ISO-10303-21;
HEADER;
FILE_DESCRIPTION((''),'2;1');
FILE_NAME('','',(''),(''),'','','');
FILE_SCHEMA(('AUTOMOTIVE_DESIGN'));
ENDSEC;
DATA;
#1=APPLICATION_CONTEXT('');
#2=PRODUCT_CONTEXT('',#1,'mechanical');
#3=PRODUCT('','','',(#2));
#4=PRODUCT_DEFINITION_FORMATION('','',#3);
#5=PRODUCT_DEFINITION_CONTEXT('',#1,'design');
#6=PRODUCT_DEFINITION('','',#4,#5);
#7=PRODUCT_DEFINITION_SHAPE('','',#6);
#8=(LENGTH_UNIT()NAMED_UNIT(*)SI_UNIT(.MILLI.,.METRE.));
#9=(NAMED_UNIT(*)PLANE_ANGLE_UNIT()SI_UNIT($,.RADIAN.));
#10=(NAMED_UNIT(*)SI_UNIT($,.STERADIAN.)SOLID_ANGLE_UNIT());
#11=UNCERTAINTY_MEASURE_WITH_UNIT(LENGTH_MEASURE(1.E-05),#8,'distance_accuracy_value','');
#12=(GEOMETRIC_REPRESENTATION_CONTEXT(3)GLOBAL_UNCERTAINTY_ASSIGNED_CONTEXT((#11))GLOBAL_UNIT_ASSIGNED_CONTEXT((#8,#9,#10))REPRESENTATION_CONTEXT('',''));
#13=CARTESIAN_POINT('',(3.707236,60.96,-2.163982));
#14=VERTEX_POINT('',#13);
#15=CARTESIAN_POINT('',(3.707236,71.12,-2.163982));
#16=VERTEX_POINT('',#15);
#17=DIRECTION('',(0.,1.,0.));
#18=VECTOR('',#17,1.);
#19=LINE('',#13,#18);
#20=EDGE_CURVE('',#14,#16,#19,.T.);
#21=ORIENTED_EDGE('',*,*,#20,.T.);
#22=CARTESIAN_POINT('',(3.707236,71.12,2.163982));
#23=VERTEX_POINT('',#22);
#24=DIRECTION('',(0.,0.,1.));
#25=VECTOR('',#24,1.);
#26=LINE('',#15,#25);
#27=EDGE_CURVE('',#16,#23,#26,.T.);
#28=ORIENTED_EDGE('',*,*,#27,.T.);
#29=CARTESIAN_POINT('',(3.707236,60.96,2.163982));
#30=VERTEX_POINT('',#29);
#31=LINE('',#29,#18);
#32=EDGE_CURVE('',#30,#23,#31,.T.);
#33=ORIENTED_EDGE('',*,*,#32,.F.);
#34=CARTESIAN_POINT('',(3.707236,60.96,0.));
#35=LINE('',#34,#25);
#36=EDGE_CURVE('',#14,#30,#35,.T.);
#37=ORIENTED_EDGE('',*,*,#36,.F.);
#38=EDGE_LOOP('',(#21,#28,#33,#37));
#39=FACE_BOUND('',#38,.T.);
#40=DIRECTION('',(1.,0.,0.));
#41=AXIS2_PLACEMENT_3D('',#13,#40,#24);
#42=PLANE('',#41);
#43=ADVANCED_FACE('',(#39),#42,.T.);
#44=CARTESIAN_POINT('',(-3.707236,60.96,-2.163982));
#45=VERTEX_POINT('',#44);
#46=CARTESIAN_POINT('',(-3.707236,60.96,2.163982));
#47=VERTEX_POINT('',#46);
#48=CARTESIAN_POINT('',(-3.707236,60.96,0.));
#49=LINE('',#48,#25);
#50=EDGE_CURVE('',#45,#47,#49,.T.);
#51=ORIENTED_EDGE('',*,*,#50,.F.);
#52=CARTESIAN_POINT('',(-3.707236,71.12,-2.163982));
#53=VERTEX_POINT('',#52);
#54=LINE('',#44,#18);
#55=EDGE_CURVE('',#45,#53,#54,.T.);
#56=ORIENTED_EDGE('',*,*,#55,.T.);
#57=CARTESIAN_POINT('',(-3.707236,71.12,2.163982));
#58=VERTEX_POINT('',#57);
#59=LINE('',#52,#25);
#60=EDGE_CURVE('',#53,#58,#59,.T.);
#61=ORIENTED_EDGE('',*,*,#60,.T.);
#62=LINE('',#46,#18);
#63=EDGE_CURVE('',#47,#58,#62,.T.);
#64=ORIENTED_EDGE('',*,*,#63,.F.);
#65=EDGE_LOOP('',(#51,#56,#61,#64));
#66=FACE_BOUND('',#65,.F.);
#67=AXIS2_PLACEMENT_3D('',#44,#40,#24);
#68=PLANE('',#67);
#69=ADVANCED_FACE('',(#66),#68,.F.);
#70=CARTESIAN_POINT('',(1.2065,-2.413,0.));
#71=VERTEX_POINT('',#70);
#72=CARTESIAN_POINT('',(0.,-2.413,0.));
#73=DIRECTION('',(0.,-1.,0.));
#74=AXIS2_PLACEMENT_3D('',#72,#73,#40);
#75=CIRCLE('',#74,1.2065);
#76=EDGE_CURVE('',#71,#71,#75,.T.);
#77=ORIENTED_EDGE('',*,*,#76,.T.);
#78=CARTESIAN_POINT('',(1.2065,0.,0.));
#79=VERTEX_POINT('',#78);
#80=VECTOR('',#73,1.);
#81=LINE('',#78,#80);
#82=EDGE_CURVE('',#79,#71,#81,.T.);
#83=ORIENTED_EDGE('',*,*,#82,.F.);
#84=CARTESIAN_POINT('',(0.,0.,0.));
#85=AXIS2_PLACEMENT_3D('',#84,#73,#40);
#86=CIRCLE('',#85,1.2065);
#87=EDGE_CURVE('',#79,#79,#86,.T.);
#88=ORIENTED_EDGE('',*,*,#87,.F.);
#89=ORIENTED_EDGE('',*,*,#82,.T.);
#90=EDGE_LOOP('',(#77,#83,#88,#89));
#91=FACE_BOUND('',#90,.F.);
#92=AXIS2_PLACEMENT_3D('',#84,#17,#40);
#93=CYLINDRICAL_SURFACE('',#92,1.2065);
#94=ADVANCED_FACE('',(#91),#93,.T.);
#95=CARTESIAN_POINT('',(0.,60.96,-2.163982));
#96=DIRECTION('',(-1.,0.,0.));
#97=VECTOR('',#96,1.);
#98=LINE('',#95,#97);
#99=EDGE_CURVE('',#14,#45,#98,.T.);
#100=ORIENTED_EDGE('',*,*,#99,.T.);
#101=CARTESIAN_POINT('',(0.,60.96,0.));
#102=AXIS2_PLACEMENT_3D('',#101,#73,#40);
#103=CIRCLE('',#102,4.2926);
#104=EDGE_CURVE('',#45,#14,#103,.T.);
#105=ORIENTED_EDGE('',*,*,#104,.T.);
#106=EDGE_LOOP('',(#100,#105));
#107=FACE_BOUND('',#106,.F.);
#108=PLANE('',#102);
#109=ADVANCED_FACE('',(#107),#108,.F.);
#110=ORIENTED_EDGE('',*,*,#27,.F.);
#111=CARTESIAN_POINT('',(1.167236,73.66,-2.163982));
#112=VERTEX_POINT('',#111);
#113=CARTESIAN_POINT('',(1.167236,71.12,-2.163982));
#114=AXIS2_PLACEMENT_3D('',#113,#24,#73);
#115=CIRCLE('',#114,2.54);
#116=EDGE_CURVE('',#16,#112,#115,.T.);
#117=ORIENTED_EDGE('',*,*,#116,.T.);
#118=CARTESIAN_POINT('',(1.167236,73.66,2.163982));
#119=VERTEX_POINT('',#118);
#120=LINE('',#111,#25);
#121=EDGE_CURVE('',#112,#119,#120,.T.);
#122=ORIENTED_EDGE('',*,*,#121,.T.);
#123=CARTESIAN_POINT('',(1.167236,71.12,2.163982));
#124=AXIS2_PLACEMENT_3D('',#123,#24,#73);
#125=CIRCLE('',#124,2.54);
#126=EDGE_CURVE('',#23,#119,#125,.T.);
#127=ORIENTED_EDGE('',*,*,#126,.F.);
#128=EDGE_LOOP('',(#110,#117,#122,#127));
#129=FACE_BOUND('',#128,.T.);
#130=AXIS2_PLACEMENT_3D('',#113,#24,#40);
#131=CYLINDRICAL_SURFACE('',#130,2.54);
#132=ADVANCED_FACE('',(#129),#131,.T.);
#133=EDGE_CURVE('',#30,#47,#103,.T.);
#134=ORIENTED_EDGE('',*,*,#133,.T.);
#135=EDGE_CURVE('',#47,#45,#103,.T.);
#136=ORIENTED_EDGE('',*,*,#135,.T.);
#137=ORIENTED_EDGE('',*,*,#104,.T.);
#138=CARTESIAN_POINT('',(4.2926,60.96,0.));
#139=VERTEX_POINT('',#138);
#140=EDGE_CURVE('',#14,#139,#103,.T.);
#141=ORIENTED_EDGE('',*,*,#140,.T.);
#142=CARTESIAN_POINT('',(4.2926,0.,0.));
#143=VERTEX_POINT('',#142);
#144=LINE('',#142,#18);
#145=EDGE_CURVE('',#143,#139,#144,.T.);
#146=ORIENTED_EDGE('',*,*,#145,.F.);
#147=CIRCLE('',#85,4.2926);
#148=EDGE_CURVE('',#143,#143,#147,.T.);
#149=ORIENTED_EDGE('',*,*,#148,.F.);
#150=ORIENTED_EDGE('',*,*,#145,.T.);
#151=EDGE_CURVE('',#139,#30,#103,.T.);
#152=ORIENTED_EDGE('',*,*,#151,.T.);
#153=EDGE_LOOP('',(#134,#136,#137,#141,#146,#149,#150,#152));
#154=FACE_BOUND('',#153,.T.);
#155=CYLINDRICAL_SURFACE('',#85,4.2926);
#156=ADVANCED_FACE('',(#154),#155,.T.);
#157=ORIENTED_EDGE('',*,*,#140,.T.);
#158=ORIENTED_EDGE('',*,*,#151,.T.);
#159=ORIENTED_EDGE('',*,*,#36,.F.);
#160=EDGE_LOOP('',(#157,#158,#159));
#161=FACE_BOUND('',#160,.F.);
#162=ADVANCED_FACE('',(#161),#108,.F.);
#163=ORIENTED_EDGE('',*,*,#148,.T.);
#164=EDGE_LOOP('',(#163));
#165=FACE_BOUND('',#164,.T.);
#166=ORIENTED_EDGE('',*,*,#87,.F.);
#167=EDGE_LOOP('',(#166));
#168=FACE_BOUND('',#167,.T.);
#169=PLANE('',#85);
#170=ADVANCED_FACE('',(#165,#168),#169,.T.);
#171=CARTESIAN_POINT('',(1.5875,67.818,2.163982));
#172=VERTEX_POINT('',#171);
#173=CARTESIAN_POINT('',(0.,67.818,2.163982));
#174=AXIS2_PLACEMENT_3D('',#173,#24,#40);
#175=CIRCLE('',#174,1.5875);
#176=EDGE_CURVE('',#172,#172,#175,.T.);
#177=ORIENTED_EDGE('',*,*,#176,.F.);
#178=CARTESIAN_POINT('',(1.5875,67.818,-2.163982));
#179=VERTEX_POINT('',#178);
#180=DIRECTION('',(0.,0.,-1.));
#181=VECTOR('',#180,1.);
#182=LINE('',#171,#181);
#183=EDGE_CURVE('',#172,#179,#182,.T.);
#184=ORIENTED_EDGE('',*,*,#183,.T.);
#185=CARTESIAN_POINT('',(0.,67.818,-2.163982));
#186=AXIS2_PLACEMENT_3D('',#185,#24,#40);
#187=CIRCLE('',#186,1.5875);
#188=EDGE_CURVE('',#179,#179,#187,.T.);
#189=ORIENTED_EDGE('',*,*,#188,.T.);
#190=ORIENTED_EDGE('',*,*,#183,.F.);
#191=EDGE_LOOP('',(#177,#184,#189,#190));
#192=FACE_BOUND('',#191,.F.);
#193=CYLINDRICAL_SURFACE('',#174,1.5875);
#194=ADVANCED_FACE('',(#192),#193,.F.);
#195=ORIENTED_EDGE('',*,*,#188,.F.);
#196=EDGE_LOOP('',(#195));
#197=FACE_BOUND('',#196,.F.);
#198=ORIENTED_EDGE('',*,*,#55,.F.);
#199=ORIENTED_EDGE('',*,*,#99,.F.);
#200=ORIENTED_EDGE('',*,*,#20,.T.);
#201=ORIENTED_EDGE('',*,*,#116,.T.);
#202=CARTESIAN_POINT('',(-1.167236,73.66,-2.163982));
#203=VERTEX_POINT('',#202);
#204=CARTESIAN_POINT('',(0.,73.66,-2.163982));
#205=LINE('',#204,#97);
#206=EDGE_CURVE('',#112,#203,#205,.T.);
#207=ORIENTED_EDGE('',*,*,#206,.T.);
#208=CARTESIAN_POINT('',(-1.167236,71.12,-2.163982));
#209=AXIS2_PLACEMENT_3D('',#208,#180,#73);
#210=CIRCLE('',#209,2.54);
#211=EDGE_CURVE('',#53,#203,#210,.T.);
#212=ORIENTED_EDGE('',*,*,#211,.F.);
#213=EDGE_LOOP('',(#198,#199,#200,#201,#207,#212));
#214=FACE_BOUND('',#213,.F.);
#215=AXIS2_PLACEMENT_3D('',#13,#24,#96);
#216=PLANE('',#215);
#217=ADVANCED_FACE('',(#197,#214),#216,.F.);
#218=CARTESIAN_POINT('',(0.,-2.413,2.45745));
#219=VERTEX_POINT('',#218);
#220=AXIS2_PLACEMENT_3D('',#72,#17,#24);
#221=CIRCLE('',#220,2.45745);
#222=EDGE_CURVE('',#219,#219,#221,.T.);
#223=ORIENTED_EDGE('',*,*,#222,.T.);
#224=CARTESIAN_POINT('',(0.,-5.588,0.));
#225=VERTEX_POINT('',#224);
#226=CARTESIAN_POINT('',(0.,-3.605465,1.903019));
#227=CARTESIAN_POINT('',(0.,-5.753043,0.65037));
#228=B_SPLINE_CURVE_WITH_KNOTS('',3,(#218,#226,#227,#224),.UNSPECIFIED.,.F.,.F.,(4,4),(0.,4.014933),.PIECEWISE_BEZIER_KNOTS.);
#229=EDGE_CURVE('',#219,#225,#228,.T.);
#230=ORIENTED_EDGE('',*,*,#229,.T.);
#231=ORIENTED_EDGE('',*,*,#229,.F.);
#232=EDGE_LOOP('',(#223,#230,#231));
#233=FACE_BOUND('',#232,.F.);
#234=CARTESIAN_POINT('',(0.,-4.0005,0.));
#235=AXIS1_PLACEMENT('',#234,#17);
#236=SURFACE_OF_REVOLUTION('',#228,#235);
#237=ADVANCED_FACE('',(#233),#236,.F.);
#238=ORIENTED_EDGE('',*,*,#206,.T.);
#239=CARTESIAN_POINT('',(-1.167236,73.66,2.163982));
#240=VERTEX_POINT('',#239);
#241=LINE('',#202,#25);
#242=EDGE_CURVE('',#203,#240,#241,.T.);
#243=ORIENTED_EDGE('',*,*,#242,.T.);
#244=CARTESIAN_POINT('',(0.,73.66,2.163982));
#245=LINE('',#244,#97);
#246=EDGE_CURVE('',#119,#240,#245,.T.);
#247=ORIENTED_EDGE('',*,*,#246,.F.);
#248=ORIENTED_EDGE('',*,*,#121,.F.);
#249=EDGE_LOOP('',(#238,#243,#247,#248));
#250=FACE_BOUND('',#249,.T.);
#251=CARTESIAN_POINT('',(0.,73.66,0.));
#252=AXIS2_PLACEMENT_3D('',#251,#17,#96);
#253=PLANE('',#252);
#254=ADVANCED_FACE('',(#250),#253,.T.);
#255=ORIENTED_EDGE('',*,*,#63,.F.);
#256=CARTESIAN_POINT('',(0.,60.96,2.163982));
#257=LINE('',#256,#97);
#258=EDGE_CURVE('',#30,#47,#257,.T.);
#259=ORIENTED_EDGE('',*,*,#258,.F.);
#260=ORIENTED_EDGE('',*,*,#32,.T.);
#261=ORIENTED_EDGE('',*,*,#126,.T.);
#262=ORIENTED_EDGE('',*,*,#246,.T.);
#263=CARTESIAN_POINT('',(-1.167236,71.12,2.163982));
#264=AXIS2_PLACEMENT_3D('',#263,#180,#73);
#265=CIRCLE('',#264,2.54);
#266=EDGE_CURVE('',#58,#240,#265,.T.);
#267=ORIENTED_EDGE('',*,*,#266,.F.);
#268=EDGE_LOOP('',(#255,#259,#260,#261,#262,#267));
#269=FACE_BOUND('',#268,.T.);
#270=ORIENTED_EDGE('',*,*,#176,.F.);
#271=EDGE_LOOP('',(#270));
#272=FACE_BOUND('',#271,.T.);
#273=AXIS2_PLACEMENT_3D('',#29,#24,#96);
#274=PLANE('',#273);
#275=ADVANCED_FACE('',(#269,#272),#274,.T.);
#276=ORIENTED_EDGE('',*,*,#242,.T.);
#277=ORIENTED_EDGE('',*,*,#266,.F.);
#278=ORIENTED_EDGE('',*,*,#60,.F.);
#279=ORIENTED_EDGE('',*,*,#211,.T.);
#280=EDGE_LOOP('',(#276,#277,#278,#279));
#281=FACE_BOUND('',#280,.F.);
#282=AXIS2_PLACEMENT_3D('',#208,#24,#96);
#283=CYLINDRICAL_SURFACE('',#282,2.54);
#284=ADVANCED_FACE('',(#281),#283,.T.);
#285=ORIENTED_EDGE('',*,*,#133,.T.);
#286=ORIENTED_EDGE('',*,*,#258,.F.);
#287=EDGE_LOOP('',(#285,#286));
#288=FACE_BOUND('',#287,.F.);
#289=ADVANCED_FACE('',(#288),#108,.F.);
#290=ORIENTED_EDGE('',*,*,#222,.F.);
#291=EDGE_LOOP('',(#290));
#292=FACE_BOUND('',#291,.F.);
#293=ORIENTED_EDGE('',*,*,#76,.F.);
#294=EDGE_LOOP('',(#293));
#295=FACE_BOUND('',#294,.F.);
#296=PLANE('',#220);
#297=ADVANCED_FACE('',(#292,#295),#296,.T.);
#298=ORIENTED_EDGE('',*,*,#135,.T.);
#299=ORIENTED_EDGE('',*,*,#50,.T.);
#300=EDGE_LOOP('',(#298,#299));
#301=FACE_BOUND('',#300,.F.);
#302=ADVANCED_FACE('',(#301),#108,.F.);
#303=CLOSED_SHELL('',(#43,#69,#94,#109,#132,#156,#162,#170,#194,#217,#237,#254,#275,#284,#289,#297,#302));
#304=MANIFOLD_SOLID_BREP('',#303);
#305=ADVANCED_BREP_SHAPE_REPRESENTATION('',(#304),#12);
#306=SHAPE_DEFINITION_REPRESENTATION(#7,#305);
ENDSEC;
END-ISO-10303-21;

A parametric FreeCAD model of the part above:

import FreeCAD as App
import Part
import Sketcher
Q = App.Units.Quantity


def edges_at(feature, points):
    """Names of the edges that pass closest to the given points."""
    edges = feature.Shape.Edges
    near = lambda p: min(range(len(edges)), key=lambda i: edges[i].distToShape(Part.Vertex(*p))[0])
    return sorted({f"Edge{near(p) + 1}" for p in points})


def add_polygon(sketch, points):
    """Adds a closed chain of lines whose ends are joined by coincident constraints."""
    first, n = sketch.GeometryCount, len(points)
    for a, b in zip(points, points[1:] + points[:1]):
        sketch.addGeometry(Part.LineSegment(App.Vector(*a, 0), App.Vector(*b, 0)), False)
    for i in range(n):
        sketch.addConstraint(Sketcher.Constraint("Coincident", first + i, 2, first + (i + 1) % n, 1))

doc = App.newDocument("Part")
body = doc.addObject("PartDesign::Body", "Body")

# Sketch on XZ plane
sketch1 = doc.addObject("Sketcher::SketchObject", "Sketch")
body.addObject(sketch1)
sketch1.AttachmentSupport = (doc.XZ_Plane, [""])
sketch1.MapMode = "FlatFace"
sketch1.addGeometry(Part.Circle(App.Vector(0, 0, 0), App.Vector(0, 0, 1), 4.3), False)
sketch1.addConstraint(Sketcher.Constraint("Coincident", 0, 3, -1, 1))
sketch1.addConstraint(Sketcher.Constraint("Diameter", 0, Q("0.338 in")))
pad1 = doc.addObject("PartDesign::Pad", "Pad")
body.addObject(pad1)
pad1.Profile = sketch1
pad1.Length = Q("2.4 in")
pad1.Reversed = True

# Sketch on XZ plane
sketch2 = doc.addObject("Sketcher::SketchObject", "Sketch001")
body.addObject(sketch2)
sketch2.AttachmentSupport = (doc.XZ_Plane, [""])
sketch2.MapMode = "FlatFace"
sketch2.addGeometry(Part.Circle(App.Vector(0, 0, 0), App.Vector(0, 0, 1), 1.2), False)
sketch2.addConstraint(Sketcher.Constraint("Coincident", 0, 3, -1, 1))
sketch2.addConstraint(Sketcher.Constraint("Diameter", 0, Q("0.095 in")))
pad2 = doc.addObject("PartDesign::Pad", "Pad001")
body.addObject(pad2)
pad2.Profile = sketch2
pad2.Length = Q("0.095 in")

# Sketch on YZ plane
sketch3 = doc.addObject("Sketcher::SketchObject", "Sketch002")
body.addObject(sketch3)
sketch3.AttachmentSupport = (doc.YZ_Plane, [""])
sketch3.MapMode = "FlatFace"
sketch3.addGeometry(Part.LineSegment(App.Vector(-5.588, 0, 0), App.Vector(-2.413, 0, 0)), False)
sketch3.addGeometry(Part.LineSegment(App.Vector(-2.413, 0, 0), App.Vector(-2.413, 2.45745, 0)), False)
sketch3.addGeometry(Part.BSplineCurve([App.Vector(-2.413, 2.45745, 0), App.Vector(-3.605465, 1.903019, 0), App.Vector(-5.753043, 0.65037, 0), App.Vector(-5.588, 0, 0)], [4, 4], [0, 4.014933], False, 3, [1, 1, 1, 1], False), False)
sketch3.addConstraint(Sketcher.Constraint("Block", 2))
sketch3.addConstraint(Sketcher.Constraint("Coincident", 0, 2, 1, 1))
sketch3.addConstraint(Sketcher.Constraint("Coincident", 1, 2, 2, 1))
sketch3.addConstraint(Sketcher.Constraint("Coincident", 2, 2, 0, 1))
sketch3.addConstraint(Sketcher.Constraint("Horizontal", 0))
sketch3.addConstraint(Sketcher.Constraint("Vertical", 1))
revolution = doc.addObject("PartDesign::Revolution", "Revolution")
body.addObject(revolution)
revolution.Profile = sketch3
revolution.ReferenceAxis = (sketch3, ["H_Axis"])
revolution.Angle = 360

# Sketch on XZ plane
sketch4 = doc.addObject("Sketcher::SketchObject", "Sketch003")
body.addObject(sketch4)
sketch4.AttachmentSupport = (doc.XZ_Plane, [""])
sketch4.MapMode = "FlatFace"
sketch4.AttachmentOffset = App.Placement(App.Vector(0, 0, -2.4 * 25.4), App.Rotation())
add_polygon(sketch4, [(3.7, 2.2), (3.7, -2.2), (-3.7, -2.2), (-3.7, 2.2)])  # lines 0-3
sketch4.addConstraint(Sketcher.Constraint("Vertical", 0))
sketch4.addConstraint(Sketcher.Constraint("Horizontal", 1))
sketch4.addConstraint(Sketcher.Constraint("Vertical", 2))
sketch4.addConstraint(Sketcher.Constraint("Horizontal", 3))
sketch4.addConstraint(Sketcher.Constraint("Symmetric", 0, 2, 2, 2, -1, 1))
sketch4.addConstraint(Sketcher.Constraint("DistanceX", 1, 2, 1, 1, Q("7.414472 mm")))
sketch4.addConstraint(Sketcher.Constraint("DistanceY", 0, 2, 0, 1, Q("4.327964 mm")))
pad3 = doc.addObject("PartDesign::Pad", "Pad002")
body.addObject(pad3)
pad3.Profile = sketch4
pad3.Length = Q("0.5 in")
pad3.Reversed = True
doc.recompute()

fillet = doc.addObject("PartDesign::Fillet", "Fillet")
body.addObject(fillet)
fillet.Base = (pad3, edges_at(pad3, [(-3.707, 73.66, 0), (3.707, 73.66, 0)]))
fillet.Radius = Q("0.1 in")

# Sketch on XY plane
sketch5 = doc.addObject("Sketcher::SketchObject", "Sketch004")
body.addObject(sketch5)
sketch5.AttachmentSupport = (doc.XY_Plane, [""])
sketch5.MapMode = "FlatFace"
sketch5.AttachmentOffset = App.Placement(App.Vector(0, 0, 2.163982), App.Rotation())
sketch5.addGeometry(Part.Circle(App.Vector(0, 67.8, 0), App.Vector(0, 0, 1), 1.6), False)
sketch5.addConstraint(Sketcher.Constraint("PointOnObject", 0, 3, -2))
sketch5.addConstraint(Sketcher.Constraint("Diameter", 0, Q("0.125 in")))
sketch5.addConstraint(Sketcher.Constraint("DistanceY", -1, 1, 0, 3, Q("2.67 in")))
pocket1 = doc.addObject("PartDesign::Pocket", "Pocket")
body.addObject(pocket1)
pocket1.Profile = sketch5
pocket1.Type = "ThroughAll"

doc.recompute()
